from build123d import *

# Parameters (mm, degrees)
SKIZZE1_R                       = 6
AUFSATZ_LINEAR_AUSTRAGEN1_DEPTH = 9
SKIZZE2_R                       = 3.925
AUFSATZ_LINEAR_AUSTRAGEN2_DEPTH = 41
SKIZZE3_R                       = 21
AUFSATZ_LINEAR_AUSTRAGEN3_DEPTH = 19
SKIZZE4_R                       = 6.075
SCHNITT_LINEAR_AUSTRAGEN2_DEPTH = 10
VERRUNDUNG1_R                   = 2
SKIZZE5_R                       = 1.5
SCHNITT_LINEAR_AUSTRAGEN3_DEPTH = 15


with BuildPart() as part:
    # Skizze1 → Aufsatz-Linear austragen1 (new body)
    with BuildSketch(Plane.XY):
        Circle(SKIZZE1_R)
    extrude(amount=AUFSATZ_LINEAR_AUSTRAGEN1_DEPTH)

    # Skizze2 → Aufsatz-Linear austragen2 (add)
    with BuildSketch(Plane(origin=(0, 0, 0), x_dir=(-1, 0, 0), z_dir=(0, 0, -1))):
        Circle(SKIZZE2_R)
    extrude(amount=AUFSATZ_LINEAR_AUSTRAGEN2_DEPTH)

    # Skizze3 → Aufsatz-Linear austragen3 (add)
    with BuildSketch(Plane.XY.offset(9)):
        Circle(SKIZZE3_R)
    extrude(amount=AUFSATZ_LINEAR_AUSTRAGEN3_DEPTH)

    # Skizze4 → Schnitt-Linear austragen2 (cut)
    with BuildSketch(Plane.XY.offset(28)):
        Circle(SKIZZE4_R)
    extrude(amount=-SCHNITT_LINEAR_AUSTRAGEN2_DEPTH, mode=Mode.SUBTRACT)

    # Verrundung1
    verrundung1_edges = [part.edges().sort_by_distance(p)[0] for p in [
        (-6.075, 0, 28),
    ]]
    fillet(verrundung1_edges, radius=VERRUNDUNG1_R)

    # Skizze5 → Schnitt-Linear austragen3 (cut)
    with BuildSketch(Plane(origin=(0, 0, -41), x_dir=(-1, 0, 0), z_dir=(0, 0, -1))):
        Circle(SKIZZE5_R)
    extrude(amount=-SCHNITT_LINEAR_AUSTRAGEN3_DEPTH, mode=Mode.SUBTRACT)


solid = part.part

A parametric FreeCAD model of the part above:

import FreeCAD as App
import Part
import Sketcher
Q = App.Units.Quantity


def edges_at(feature, points):
    """Names of the edges that pass closest to the given points."""
    edges = feature.Shape.Edges
    near = lambda p: min(range(len(edges)), key=lambda i: edges[i].distToShape(Part.Vertex(*p))[0])
    return sorted({f"Edge{near(p) + 1}" for p in points})

doc = App.newDocument("Part")
params = doc.addObject("Spreadsheet::Sheet", "Params")
for row, (alias, value) in enumerate([
    ("sketch1_diameter", "12 mm"),
    ("pad1_length", "9 mm"),
    ("sketch2_diameter", "7.85 mm"),
    ("pad2_length", "41 mm"),
    ("sketch3_diameter", "42 mm"),
    ("pad3_length", "19 mm"),
    ("sketch4_diameter", "12.15 mm"),
    ("pocket1_length", "10 mm"),
    ("fillet_radius", "2 mm"),
    ("sketch5_diameter", "3 mm"),
    ("pocket2_length", "15 mm"),
], start=1):
    params.set(f"A{row}", alias)
    params.set(f"B{row}", "=" + value)
    params.setAlias(f"B{row}", alias)

body = doc.addObject("PartDesign::Body", "Body")

# Sketch on XY plane
sketch1 = body.newObject("Sketcher::SketchObject", "Sketch")
sketch1.AttachmentSupport = (doc.getObject("XY_Plane"), [""])
sketch1.MapMode = "FlatFace"
sketch1.addGeometry(Part.Circle(App.Vector(0, 0, 0), App.Vector(0, 0, 1), 6), False)
sketch1.addConstraint([
    Sketcher.Constraint("Coincident", 0, 3, -1, 1),
    Sketcher.Constraint("Diameter", 0, Q("12 mm")),
])
sketch1.setExpression("Constraints[1]", "Params.sketch1_diameter")
pad1 = body.newObject("PartDesign::Pad", "Pad")
pad1.Profile = sketch1
pad1.setExpression("Length", "Params.pad1_length")

# Sketch on XY plane
sketch2 = body.newObject("Sketcher::SketchObject", "Sketch001")
sketch2.AttachmentSupport = (doc.getObject("XY_Plane"), [""])
sketch2.MapMode = "FlatFace"
sketch2.addGeometry(Part.Circle(App.Vector(0, 0, 0), App.Vector(0, 0, 1), 3.925), False)
sketch2.addConstraint([
    Sketcher.Constraint("Coincident", 0, 3, -1, 1),
    Sketcher.Constraint("Diameter", 0, Q("7.85 mm")),
])
sketch2.setExpression("Constraints[1]", "Params.sketch2_diameter")
pad2 = body.newObject("PartDesign::Pad", "Pad001")
pad2.Profile = sketch2
pad2.setExpression("Length", "Params.pad2_length")
pad2.Reversed = True

# Sketch on XY plane
sketch3 = body.newObject("Sketcher::SketchObject", "Sketch002")
sketch3.AttachmentSupport = (doc.getObject("XY_Plane"), [""])
sketch3.MapMode = "FlatFace"
sketch3.AttachmentOffset = App.Placement(App.Vector(0, 0, 9), App.Rotation())
sketch3.addGeometry(Part.Circle(App.Vector(0, 0, 0), App.Vector(0, 0, 1), 21), False)
sketch3.addConstraint([
    Sketcher.Constraint("Coincident", 0, 3, -1, 1),
    Sketcher.Constraint("Diameter", 0, Q("42 mm")),
])
sketch3.setExpression("Constraints[1]", "Params.sketch3_diameter")
pad3 = body.newObject("PartDesign::Pad", "Pad002")
pad3.Profile = sketch3
pad3.setExpression("Length", "Params.pad3_length")

# Sketch on XY plane
sketch4 = body.newObject("Sketcher::SketchObject", "Sketch003")
sketch4.AttachmentSupport = (doc.getObject("XY_Plane"), [""])
sketch4.MapMode = "FlatFace"
sketch4.AttachmentOffset = App.Placement(App.Vector(0, 0, 28), App.Rotation())
sketch4.addGeometry(Part.Circle(App.Vector(0, 0, 0), App.Vector(0, 0, 1), 6.075), False)
sketch4.addConstraint([
    Sketcher.Constraint("Coincident", 0, 3, -1, 1),
    Sketcher.Constraint("Diameter", 0, Q("12.15 mm")),
])
sketch4.setExpression("Constraints[1]", "Params.sketch4_diameter")
pocket1 = body.newObject("PartDesign::Pocket", "Pocket")
pocket1.Profile = sketch4
pocket1.setExpression("Length", "Params.pocket1_length")
doc.recompute()

fillet = body.newObject("PartDesign::Fillet", "Fillet")
fillet.Base = (pocket1, edges_at(pocket1, [(-6.075, 0, 28)]))
fillet.setExpression("Radius", "Params.fillet_radius")

# Sketch on XY plane
sketch5 = body.newObject("Sketcher::SketchObject", "Sketch004")
sketch5.AttachmentSupport = (doc.getObject("XY_Plane"), [""])
sketch5.MapMode = "FlatFace"
sketch5.AttachmentOffset = App.Placement(App.Vector(0, 0, -41), App.Rotation())
sketch5.addGeometry(Part.Circle(App.Vector(0, 0, 0), App.Vector(0, 0, 1), 1.5), False)
sketch5.addConstraint([
    Sketcher.Constraint("Coincident", 0, 3, -1, 1),
    Sketcher.Constraint("Diameter", 0, Q("3 mm")),
])
sketch5.setExpression("Constraints[1]", "Params.sketch5_diameter")
pocket2 = body.newObject("PartDesign::Pocket", "Pocket001")
pocket2.Profile = sketch5
pocket2.setExpression("Length", "Params.pocket2_length")
pocket2.Reversed = True

doc.recompute()
